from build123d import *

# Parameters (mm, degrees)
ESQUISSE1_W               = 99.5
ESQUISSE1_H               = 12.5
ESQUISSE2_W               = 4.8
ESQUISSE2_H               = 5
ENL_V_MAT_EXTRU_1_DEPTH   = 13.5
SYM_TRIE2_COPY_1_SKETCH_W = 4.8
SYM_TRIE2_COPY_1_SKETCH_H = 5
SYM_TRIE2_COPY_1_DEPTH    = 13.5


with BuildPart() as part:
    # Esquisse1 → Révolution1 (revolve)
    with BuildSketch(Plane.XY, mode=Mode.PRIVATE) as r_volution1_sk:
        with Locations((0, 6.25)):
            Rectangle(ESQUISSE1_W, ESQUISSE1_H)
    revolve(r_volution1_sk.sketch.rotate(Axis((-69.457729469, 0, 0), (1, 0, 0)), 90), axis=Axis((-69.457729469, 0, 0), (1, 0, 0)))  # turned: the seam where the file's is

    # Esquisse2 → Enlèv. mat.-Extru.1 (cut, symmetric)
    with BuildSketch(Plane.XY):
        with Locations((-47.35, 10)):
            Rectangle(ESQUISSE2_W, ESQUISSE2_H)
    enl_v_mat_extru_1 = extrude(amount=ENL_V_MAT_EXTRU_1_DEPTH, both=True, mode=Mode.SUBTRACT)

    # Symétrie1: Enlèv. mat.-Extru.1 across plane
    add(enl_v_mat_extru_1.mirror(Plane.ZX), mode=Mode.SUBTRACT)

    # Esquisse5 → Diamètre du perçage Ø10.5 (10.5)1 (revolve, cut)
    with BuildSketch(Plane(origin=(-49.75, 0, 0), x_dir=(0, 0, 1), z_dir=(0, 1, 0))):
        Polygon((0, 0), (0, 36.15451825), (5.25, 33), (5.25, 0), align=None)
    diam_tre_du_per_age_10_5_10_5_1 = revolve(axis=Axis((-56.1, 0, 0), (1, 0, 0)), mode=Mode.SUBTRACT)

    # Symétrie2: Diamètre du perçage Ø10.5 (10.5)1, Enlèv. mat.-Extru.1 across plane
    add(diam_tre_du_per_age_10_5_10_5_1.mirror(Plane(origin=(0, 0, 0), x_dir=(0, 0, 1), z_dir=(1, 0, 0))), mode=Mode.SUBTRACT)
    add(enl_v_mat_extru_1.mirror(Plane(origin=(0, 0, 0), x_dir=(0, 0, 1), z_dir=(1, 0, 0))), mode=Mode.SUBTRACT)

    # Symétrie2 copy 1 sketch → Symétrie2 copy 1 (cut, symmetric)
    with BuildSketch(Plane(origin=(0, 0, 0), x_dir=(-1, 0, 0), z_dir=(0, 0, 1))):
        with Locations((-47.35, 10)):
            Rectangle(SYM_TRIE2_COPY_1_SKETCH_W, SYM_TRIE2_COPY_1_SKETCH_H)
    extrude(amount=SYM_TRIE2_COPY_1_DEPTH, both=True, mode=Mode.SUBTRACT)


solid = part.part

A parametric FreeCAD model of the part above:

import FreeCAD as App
import Part
import Sketcher
from FreeCAD import Vector
Q = App.Units.Quantity


def add_polygon(sketch, points):
    """Adds a closed chain of lines whose ends are joined by coincident constraints."""
    first, n = sketch.GeometryCount, len(points)
    for a, b in zip(points, points[1:] + points[:1]):
        sketch.addGeometry(Part.LineSegment(App.Vector(*a, 0), App.Vector(*b, 0)), False)
    for i in range(n):
        sketch.addConstraint(Sketcher.Constraint("Coincident", first + i, 2, first + (i + 1) % n, 1))

doc = App.newDocument("Part")
params = doc.addObject("Spreadsheet::Sheet", "Params")
for row, (alias, value) in enumerate([
    ("sketch1_width", "99.5 mm"),
    ("sketch1_height", "12.5 mm"),
    ("revolution_angle", "360 deg"),
    ("sketch2_height", "5 mm"),
    ("sketch2_width", "4.8 mm"),
    ("pocket1_length", "27 mm"),
    ("sketch3_width", "33 mm"),
    ("sketch3_height", "5.25 mm"),
    ("groove_angle", "360 deg"),
    ("sketch4_height", "5 mm"),
    ("sketch4_width", "4.8 mm"),
    ("pocket2_length", "27 mm"),
], start=1):
    params.set(f"A{row}", alias)
    params.set(f"B{row}", "=" + value)
    params.setAlias(f"B{row}", alias)

body = doc.addObject("PartDesign::Body", "Body")

sketch1 = doc.addObject("Sketcher::SketchObject", "Sketch")
body.addObject(sketch1)
sketch1.AttachmentSupport = (doc.XY_Plane, [""])
sketch1.MapMode = "FlatFace"
add_polygon(sketch1, [(-50, 12), (-50, 0), (50, 0), (50, 12)])
sketch1.addConstraint(Sketcher.Constraint("Vertical", 0))
sketch1.addConstraint(Sketcher.Constraint("Horizontal", 1))
sketch1.addConstraint(Sketcher.Constraint("Vertical", 2))
sketch1.addConstraint(Sketcher.Constraint("Horizontal", 3))
sketch1.addConstraint(Sketcher.Constraint("Symmetric", 0, 2, 1, 2, -1, 1))
sketch1.addConstraint(Sketcher.Constraint("DistanceX", 1, 1, 1, 2, 99.5))
sketch1.addConstraint(Sketcher.Constraint("DistanceY", 0, 2, 0, 1, 12.5))
sketch1.setExpression("Constraints[9]", "Params.sketch1_width")
sketch1.setExpression("Constraints[10]", "Params.sketch1_height")
revolution = doc.addObject("PartDesign::Revolution", "Revolution")
body.addObject(revolution)
revolution.Profile = sketch1
revolution.ReferenceAxis = (sketch1, ["H_Axis"])
revolution.setExpression("Angle", "Params.revolution_angle")

sketch2 = doc.addObject("Sketcher::SketchObject", "Sketch001")
body.addObject(sketch2)
sketch2.AttachmentSupport = (doc.XY_Plane, [""])
sketch2.MapMode = "FlatFace"
add_polygon(sketch2, [(-49.8, 12.5), (-49.8, 7.5), (-45, 7.5), (-45, 12.5)])
sketch2.addConstraint(Sketcher.Constraint("Vertical", 0))
sketch2.addConstraint(Sketcher.Constraint("Horizontal", 1))
sketch2.addConstraint(Sketcher.Constraint("Vertical", 2))
sketch2.addConstraint(Sketcher.Constraint("Horizontal", 3))
sketch2.addConstraint(Sketcher.Constraint("DistanceY", 0, 2, 0, 1, 5.0))
sketch2.addConstraint(Sketcher.Constraint("DistanceX", 1, 1, 1, 2, 4.8))
sketch2.addConstraint(Sketcher.Constraint("DistanceY", -1, 1, 0, 2, 7.5))
sketch2.addConstraint(Sketcher.Constraint("DistanceX", 0, 2, -1, 1, 49.75))
sketch2.setExpression("Constraints[8]", "Params.sketch2_height")
sketch2.setExpression("Constraints[9]", "Params.sketch2_width")
pocket1 = doc.addObject("PartDesign::Pocket", "Pocket")
body.addObject(pocket1)
pocket1.Profile = sketch2
pocket1.setExpression("Length", "Params.pocket1_length")
pocket1.Midplane = True
doc.recompute()

mirrored = doc.addObject("PartDesign::Mirrored", "Mirrored")
body.addObject(mirrored)
mirrored.Originals = [pocket1]
mirrored.MirrorPlane = (doc.XZ_Plane, [""])
body.Tip = mirrored

sketch3 = doc.addObject("Sketcher::SketchObject", "Sketch002")
body.addObject(sketch3)
sketch3.AttachmentSupport = (doc.XZ_Plane, [""])
sketch3.MapMode = "FlatFace"
add_polygon(sketch3, [(-14, 0), (-50, 0), (-50, 5), (-17, 5)])
sketch3.addConstraint(Sketcher.Constraint("Horizontal", 0))
sketch3.addConstraint(Sketcher.Constraint("Vertical", 1))
sketch3.addConstraint(Sketcher.Constraint("Horizontal", 2))
sketch3.addConstraint(Sketcher.Constraint("PointOnObject", 0, 2, -1))
sketch3.addConstraint(Sketcher.Constraint("DistanceX", 2, 1, 2, 2, 33.0))
sketch3.addConstraint(Sketcher.Constraint("Angle", 3, Q("-59 deg")))
sketch3.addConstraint(Sketcher.Constraint("DistanceY", 1, 1, 1, 2, 5.25))
sketch3.addConstraint(Sketcher.Constraint("DistanceX", 0, 2, -1, 1, 49.75))
sketch3.setExpression("Constraints[8]", "Params.sketch3_width")
sketch3.setExpression("Constraints[10]", "Params.sketch3_height")
groove = doc.addObject("PartDesign::Groove", "Groove")
body.addObject(groove)
groove.Profile = sketch3
groove.ReferenceAxis = (sketch3, ["H_Axis"])
groove.setExpression("Angle", "Params.groove_angle")
doc.recompute()

mirrored2 = doc.addObject("PartDesign::Mirrored", "Mirrored001")
body.addObject(mirrored2)
mirrored2.Originals = [groove, pocket1]
mirrored2.MirrorPlane = (doc.YZ_Plane, [""])
body.Tip = mirrored2

sketch4 = doc.addObject("Sketcher::SketchObject", "Sketch003")
body.addObject(sketch4)
sketch4.AttachmentSupport = (doc.XY_Plane, [""])
sketch4.MapMode = "FlatFace"
add_polygon(sketch4, [(49.8, -12.5), (49.8, -7.5), (45, -7.5), (45, -12.5)])
sketch4.addConstraint(Sketcher.Constraint("Vertical", 0))
sketch4.addConstraint(Sketcher.Constraint("Horizontal", 1))
sketch4.addConstraint(Sketcher.Constraint("Vertical", 2))
sketch4.addConstraint(Sketcher.Constraint("Horizontal", 3))
sketch4.addConstraint(Sketcher.Constraint("DistanceY", 0, 1, 0, 2, 5.0))
sketch4.addConstraint(Sketcher.Constraint("DistanceX", 1, 2, 1, 1, 4.8))
sketch4.addConstraint(Sketcher.Constraint("DistanceY", 0, 2, -1, 1, 7.5))
sketch4.addConstraint(Sketcher.Constraint("DistanceX", -1, 1, 0, 2, 49.75))
sketch4.setExpression("Constraints[8]", "Params.sketch4_height")
sketch4.setExpression("Constraints[9]", "Params.sketch4_width")
pocket2 = doc.addObject("PartDesign::Pocket", "Pocket001")
body.addObject(pocket2)
pocket2.Profile = sketch4
pocket2.setExpression("Length", "Params.pocket2_length")
pocket2.Midplane = True

doc.recompute()
